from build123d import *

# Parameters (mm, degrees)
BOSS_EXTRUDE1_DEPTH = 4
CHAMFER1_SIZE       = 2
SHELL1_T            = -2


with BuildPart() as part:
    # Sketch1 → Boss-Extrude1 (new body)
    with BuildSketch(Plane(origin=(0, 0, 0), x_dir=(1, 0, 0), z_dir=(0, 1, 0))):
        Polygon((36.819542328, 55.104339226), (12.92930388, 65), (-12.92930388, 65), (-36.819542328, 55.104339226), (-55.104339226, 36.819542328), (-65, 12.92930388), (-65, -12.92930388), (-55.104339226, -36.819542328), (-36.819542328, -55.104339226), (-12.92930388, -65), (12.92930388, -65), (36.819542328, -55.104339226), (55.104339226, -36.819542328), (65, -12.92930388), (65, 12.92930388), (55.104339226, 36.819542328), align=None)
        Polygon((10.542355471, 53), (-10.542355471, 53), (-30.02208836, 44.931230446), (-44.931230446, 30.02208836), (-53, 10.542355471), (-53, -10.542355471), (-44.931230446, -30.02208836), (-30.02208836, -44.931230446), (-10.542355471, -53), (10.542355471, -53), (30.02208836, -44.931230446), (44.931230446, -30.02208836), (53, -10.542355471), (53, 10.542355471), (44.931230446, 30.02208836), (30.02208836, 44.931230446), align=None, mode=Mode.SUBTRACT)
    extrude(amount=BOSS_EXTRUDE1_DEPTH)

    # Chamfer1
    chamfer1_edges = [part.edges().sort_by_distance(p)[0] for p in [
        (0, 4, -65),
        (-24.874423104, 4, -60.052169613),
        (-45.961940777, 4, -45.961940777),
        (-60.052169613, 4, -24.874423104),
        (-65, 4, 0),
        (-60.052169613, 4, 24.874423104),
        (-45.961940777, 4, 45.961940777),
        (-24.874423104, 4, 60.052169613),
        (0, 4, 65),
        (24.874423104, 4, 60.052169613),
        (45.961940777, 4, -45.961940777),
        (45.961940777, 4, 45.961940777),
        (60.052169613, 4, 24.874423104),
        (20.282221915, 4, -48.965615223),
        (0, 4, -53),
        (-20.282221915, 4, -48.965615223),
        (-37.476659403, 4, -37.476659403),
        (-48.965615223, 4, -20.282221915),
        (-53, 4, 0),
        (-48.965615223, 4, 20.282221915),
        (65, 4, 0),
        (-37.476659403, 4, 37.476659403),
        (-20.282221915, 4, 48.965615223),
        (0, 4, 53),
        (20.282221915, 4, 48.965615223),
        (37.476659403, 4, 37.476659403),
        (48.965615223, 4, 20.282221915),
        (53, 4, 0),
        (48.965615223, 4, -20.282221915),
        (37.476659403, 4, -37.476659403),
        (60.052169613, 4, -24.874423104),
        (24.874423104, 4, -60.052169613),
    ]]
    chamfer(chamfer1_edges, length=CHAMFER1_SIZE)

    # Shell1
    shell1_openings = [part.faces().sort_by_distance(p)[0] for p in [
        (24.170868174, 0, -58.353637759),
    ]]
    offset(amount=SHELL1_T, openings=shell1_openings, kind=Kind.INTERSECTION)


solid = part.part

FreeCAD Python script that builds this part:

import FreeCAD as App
import Part
import Sketcher

V = App.Vector
Q = App.Units.Quantity


def edges_at(feature, points):
    """Names of the edges that pass closest to the given points."""
    edges = feature.Shape.Edges
    near = lambda p: min(range(len(edges)), key=lambda i: edges[i].distToShape(Part.Vertex(*p))[0])
    return sorted({f"Edge{near(p) + 1}" for p in points})


def faces_at(feature, points):
    """Names of the faces that lie closest to the given points."""
    faces = feature.Shape.Faces
    near = lambda p: min(range(len(faces)), key=lambda i: faces[i].distToShape(Part.Vertex(*p))[0])
    return sorted({f"Face{near(p) + 1}" for p in points})

doc = App.newDocument("Part")
body = doc.addObject("PartDesign::Body", "Body")

sketch1 = doc.addObject("Sketcher::SketchObject", "Sketch")
body.addObject(sketch1)
sketch1.AttachmentSupport = (doc.XZ_Plane, [""])
sketch1.MapMode = "FlatFace"
sketch1.addGeometry([
    Part.LineSegment(V(36.819542, -55.104339, 0), V(12.929304, -65, 0)),
    Part.LineSegment(V(12.929304, -65, 0), V(-12.929304, -65, 0)),
    Part.LineSegment(V(-12.929304, -65, 0), V(-36.819542, -55.104339, 0)),
    Part.LineSegment(V(-36.819542, -55.104339, 0), V(-55.104339, -36.819542, 0)),
    Part.LineSegment(V(-55.104339, -36.819542, 0), V(-65, -12.929304, 0)),
    Part.LineSegment(V(-65, -12.929304, 0), V(-65, 12.929304, 0)),
    Part.LineSegment(V(-65, 12.929304, 0), V(-55.104339, 36.819542, 0)),
    Part.LineSegment(V(-55.104339, 36.819542, 0), V(-36.819542, 55.104339, 0)),
    Part.LineSegment(V(-36.819542, 55.104339, 0), V(-12.929304, 65, 0)),
    Part.LineSegment(V(-12.929304, 65, 0), V(12.929304, 65, 0)),
    Part.LineSegment(V(12.929304, 65, 0), V(36.819542, 55.104339, 0)),
    Part.LineSegment(V(36.819542, 55.104339, 0), V(55.104339, 36.819542, 0)),
    Part.LineSegment(V(55.104339, 36.819542, 0), V(65, 12.929304, 0)),
    Part.LineSegment(V(65, 12.929304, 0), V(65, -12.929304, 0)),
    Part.LineSegment(V(65, -12.929304, 0), V(55.104339, -36.819542, 0)),
    Part.LineSegment(V(55.104339, -36.819542, 0), V(36.819542, -55.104339, 0)),
    Part.LineSegment(V(-10.542355, -53, 0), V(10.542355, -53, 0)),
    Part.LineSegment(V(10.542355, -53, 0), V(30.022088, -44.93123, 0)),
    Part.LineSegment(V(30.022088, -44.93123, 0), V(44.93123, -30.022088, 0)),
    Part.LineSegment(V(44.93123, -30.022088, 0), V(53, -10.542355, 0)),
    Part.LineSegment(V(53, -10.542355, 0), V(53, 10.542355, 0)),
    Part.LineSegment(V(53, 10.542355, 0), V(44.93123, 30.022088, 0)),
    Part.LineSegment(V(44.93123, 30.022088, 0), V(30.022088, 44.93123, 0)),
    Part.LineSegment(V(30.022088, 44.93123, 0), V(10.542355, 53, 0)),
    Part.LineSegment(V(10.542355, 53, 0), V(-10.542355, 53, 0)),
    Part.LineSegment(V(-10.542355, 53, 0), V(-30.022088, 44.93123, 0)),
    Part.LineSegment(V(-30.022088, 44.93123, 0), V(-44.93123, 30.022088, 0)),
    Part.LineSegment(V(-44.93123, 30.022088, 0), V(-53, 10.542355, 0)),
    Part.LineSegment(V(-53, 10.542355, 0), V(-53, -10.542355, 0)),
    Part.LineSegment(V(-53, -10.542355, 0), V(-44.93123, -30.022088, 0)),
    Part.LineSegment(V(-44.93123, -30.022088, 0), V(-30.022088, -44.93123, 0)),
    Part.LineSegment(V(-30.022088, -44.93123, 0), V(-10.542355, -53, 0)),
], False)
sketch1.addConstraint([
    Sketcher.Constraint("Coincident", 0, 2, 1, 1),
    Sketcher.Constraint("Coincident", 1, 2, 2, 1),
    Sketcher.Constraint("Coincident", 2, 2, 3, 1),
    Sketcher.Constraint("Coincident", 3, 2, 4, 1),
    Sketcher.Constraint("Coincident", 4, 2, 5, 1),
    Sketcher.Constraint("Coincident", 5, 2, 6, 1),
    Sketcher.Constraint("Coincident", 6, 2, 7, 1),
    Sketcher.Constraint("Coincident", 7, 2, 8, 1),
    Sketcher.Constraint("Coincident", 8, 2, 9, 1),
    Sketcher.Constraint("Coincident", 9, 2, 10, 1),
    Sketcher.Constraint("Coincident", 10, 2, 11, 1),
    Sketcher.Constraint("Coincident", 11, 2, 12, 1),
    Sketcher.Constraint("Coincident", 12, 2, 13, 1),
    Sketcher.Constraint("Coincident", 13, 2, 14, 1),
    Sketcher.Constraint("Coincident", 14, 2, 15, 1),
    Sketcher.Constraint("Coincident", 15, 2, 0, 1),
    Sketcher.Constraint("Coincident", 16, 2, 17, 1),
    Sketcher.Constraint("Coincident", 17, 2, 18, 1),
    Sketcher.Constraint("Coincident", 18, 2, 19, 1),
    Sketcher.Constraint("Coincident", 19, 2, 20, 1),
    Sketcher.Constraint("Coincident", 20, 2, 21, 1),
    Sketcher.Constraint("Coincident", 21, 2, 22, 1),
    Sketcher.Constraint("Coincident", 22, 2, 23, 1),
    Sketcher.Constraint("Coincident", 23, 2, 24, 1),
    Sketcher.Constraint("Coincident", 24, 2, 25, 1),
    Sketcher.Constraint("Coincident", 25, 2, 26, 1),
    Sketcher.Constraint("Coincident", 26, 2, 27, 1),
    Sketcher.Constraint("Coincident", 27, 2, 28, 1),
    Sketcher.Constraint("Coincident", 28, 2, 29, 1),
    Sketcher.Constraint("Coincident", 29, 2, 30, 1),
    Sketcher.Constraint("Coincident", 30, 2, 31, 1),
    Sketcher.Constraint("Coincident", 31, 2, 16, 1),
    Sketcher.Constraint("Horizontal", 1),
    Sketcher.Constraint("Vertical", 5),
    Sketcher.Constraint("Horizontal", 9),
    Sketcher.Constraint("Vertical", 13),
    Sketcher.Constraint("Horizontal", 16),
    Sketcher.Constraint("Vertical", 20),
    Sketcher.Constraint("Horizontal", 24),
    Sketcher.Constraint("Vertical", 28),
    Sketcher.Constraint("Symmetric", 0, 2, 8, 2, -1, 1),
    Sketcher.Constraint("Symmetric", 2, 2, 10, 2, -1, 1),
    Sketcher.Constraint("Symmetric", 3, 2, 11, 2, -1, 1),
    Sketcher.Constraint("Symmetric", 4, 2, 12, 2, -1, 1),
    Sketcher.Constraint("Symmetric", 6, 2, 14, 2, -1, 1),
    Sketcher.Constraint("Symmetric", 7, 2, 15, 2, -1, 1),
    Sketcher.Constraint("Symmetric", 16, 2, 24, 2, -1, 1),
    Sketcher.Constraint("Symmetric", 17, 2, 25, 2, -1, 1),
    Sketcher.Constraint("Symmetric", 18, 2, 26, 2, -1, 1),
    Sketcher.Constraint("Symmetric", 19, 2, 27, 2, -1, 1),
    Sketcher.Constraint("Symmetric", 21, 2, 29, 2, -1, 1),
    Sketcher.Constraint("Symmetric", 22, 2, 30, 2, -1, 1),
    Sketcher.Constraint("Symmetric", 7, 2, 10, 2, -2),
    Sketcher.Constraint("Symmetric", 6, 2, 11, 2, -2),
    Sketcher.Constraint("Symmetric", 22, 2, 25, 2, -2),
    Sketcher.Constraint("Symmetric", 21, 2, 26, 2, -2),
    Sketcher.Constraint("Perpendicular", 0, 4),
    Sketcher.Constraint("Perpendicular", 2, 6),
    Sketcher.Constraint("Perpendicular", 3, 7),
    Sketcher.Constraint("Perpendicular", 6, 10),
    Sketcher.Constraint("Perpendicular", 10, 14),
    Sketcher.Constraint("Perpendicular", 12, 17),
    Sketcher.Constraint("Parallel", 15, 18),
    Sketcher.Constraint("Parallel", 14, 19),
    Sketcher.Constraint("Perpendicular", 17, 21),
    Sketcher.Constraint("Perpendicular", 19, 23),
    Sketcher.Constraint("Perpendicular", 25, 29),
    Sketcher.Constraint("Perpendicular", 27, 31),
    Sketcher.Constraint("Horizontal", 5, 2, 12, 2),
    Sketcher.Constraint("Equal", 9, 5),
    Sketcher.Constraint("Equal", 24, 20),
    Sketcher.Constraint("Equal", 2, 3),
    Sketcher.Constraint("Equal", 3, 4),
    Sketcher.Constraint("Equal", 17, 18),
    Sketcher.Constraint("Equal", 18, 19),
    Sketcher.Constraint("DistanceY", 0, 2, -1, 1, 65.0),
    Sketcher.Constraint("DistanceY", 16, 2, -1, 1, 53.0),
    Sketcher.Constraint("Angle", 0, Q("-157.5 deg")),
    Sketcher.Constraint("DistanceX", 16, 1, 16, 2, 21.084711),
    Sketcher.Constraint("DistanceX", 1, 2, 1, 1, 25.858608),
])
pad1 = doc.addObject("PartDesign::Pad", "Pad")
body.addObject(pad1)
pad1.Profile = sketch1
pad1.Length = 4
pad1.Reversed = True
doc.recompute()

chamfer = doc.addObject("PartDesign::Chamfer", "Chamfer")
body.addObject(chamfer)
chamfer.Base = (pad1, edges_at(pad1, [
    (0, 4, -65),
    (-24.874, 4, -60.052),
    (-45.962, 4, -45.962),
    (-60.052, 4, -24.874),
    (-65, 4, 0),
    (-60.052, 4, 24.874),
    (-45.962, 4, 45.962),
    (-24.874, 4, 60.052),
    (0, 4, 65),
    (24.874, 4, 60.052),
    (45.962, 4, -45.962),
    (45.962, 4, 45.962),
    (60.052, 4, 24.874),
    (20.282, 4, -48.966),
    (0, 4, -53),
    (-20.282, 4, -48.966),
    (-37.477, 4, -37.477),
    (-48.966, 4, -20.282),
    (-53, 4, 0),
    (-48.966, 4, 20.282),
    (65, 4, 0),
    (-37.477, 4, 37.477),
    (-20.282, 4, 48.966),
    (0, 4, 53),
    (20.282, 4, 48.966),
    (37.477, 4, 37.477),
    (48.966, 4, 20.282),
    (53, 4, 0),
    (48.966, 4, -20.282),
    (37.477, 4, -37.477),
    (60.052, 4, -24.874),
    (24.874, 4, -60.052),
]))
chamfer.Size = 2
doc.recompute()

thickness = doc.addObject("PartDesign::Thickness", "Thickness")
body.addObject(thickness)
thickness.Base = (chamfer, faces_at(chamfer, [(-61.1, 0, 0)]))
thickness.Value = 2
thickness.Reversed = True
thickness.Join = "Intersection"

doc.recompute()
